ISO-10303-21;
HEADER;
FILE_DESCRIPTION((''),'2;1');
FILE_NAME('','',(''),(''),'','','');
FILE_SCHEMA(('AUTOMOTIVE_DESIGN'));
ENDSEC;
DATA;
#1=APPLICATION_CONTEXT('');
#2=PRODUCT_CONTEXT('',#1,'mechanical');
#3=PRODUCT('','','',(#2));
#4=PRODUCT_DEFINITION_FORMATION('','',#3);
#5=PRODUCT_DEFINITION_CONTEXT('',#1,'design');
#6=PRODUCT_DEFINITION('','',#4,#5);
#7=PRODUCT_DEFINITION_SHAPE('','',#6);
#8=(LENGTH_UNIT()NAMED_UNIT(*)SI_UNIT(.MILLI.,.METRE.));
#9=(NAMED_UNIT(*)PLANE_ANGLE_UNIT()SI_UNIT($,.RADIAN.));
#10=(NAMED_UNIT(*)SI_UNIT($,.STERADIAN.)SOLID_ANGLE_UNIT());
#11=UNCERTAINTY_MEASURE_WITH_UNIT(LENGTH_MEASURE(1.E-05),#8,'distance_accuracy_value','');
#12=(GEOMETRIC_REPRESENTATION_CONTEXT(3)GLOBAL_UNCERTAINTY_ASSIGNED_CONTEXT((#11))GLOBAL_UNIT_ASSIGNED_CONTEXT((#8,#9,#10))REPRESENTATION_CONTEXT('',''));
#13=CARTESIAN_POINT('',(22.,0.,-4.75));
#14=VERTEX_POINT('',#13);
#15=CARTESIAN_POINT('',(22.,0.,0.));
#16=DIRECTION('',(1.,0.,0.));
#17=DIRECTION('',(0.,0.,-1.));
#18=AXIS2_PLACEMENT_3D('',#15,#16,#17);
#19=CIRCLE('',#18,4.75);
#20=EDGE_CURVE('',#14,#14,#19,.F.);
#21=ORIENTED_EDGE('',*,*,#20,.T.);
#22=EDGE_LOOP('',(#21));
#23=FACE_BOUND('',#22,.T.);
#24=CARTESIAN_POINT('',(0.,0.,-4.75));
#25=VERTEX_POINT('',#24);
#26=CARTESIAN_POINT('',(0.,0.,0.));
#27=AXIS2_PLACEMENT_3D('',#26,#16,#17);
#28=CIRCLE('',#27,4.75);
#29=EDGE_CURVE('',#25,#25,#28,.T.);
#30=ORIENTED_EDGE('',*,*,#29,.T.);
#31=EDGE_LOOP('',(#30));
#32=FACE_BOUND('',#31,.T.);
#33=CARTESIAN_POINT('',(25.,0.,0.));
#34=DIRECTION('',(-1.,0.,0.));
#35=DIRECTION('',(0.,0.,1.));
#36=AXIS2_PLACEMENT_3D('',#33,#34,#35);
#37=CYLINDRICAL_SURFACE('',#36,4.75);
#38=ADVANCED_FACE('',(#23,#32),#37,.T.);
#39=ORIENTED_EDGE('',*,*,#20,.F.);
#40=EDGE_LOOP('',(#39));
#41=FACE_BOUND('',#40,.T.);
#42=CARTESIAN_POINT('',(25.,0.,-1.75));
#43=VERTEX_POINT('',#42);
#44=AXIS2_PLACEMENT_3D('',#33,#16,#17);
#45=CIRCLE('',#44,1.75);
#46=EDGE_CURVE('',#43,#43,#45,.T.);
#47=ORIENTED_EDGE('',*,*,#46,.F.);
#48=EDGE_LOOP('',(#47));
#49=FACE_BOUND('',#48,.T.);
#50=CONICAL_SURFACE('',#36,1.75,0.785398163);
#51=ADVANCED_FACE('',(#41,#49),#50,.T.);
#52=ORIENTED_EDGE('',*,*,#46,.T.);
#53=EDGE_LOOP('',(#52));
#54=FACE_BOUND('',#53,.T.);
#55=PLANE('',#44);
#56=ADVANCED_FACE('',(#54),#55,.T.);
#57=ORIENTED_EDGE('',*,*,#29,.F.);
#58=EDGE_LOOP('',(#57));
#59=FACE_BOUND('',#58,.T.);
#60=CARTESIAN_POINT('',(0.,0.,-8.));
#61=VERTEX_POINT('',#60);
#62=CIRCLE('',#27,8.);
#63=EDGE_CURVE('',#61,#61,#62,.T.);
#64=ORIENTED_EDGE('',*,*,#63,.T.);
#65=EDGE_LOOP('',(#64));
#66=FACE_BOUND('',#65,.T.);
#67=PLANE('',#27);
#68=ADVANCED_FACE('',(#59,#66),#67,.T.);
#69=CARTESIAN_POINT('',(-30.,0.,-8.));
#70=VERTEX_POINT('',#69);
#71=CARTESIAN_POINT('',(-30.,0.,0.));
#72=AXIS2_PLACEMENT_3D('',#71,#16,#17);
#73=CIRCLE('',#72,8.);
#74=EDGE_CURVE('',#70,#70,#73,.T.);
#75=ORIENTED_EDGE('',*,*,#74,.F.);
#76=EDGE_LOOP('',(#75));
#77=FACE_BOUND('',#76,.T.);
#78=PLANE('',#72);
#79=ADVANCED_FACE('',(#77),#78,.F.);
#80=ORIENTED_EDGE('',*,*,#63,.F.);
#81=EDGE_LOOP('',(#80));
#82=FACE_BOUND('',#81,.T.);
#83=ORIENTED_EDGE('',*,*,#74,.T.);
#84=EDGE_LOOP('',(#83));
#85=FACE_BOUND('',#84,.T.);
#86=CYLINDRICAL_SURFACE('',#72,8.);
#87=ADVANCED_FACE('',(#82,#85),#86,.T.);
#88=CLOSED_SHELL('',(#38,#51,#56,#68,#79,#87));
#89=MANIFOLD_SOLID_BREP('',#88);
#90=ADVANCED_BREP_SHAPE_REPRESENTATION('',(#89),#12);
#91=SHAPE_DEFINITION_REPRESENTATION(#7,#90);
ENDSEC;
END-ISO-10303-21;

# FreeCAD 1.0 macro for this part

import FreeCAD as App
import Part
import Sketcher

V = App.Vector


def edges_at(feature, points):
    """Names of the edges that pass closest to the given points."""
    edges = feature.Shape.Edges
    near = lambda p: min(range(len(edges)), key=lambda i: edges[i].distToShape(Part.Vertex(*p))[0])
    return sorted({f"Edge{near(p) + 1}" for p in points})

doc = App.newDocument("Part")
body = doc.addObject("PartDesign::Body", "Body")

sketch1 = body.newObject("Sketcher::SketchObject", "Sketch")
sketch1.AttachmentSupport = (doc.getObject("YZ_Plane"), [""])
sketch1.MapMode = "FlatFace"
sketch1.addGeometry(Part.Circle(V(0, 0, 0), V(0, 0, 1), 8), False)
sketch1.addConstraint([
    Sketcher.Constraint("Coincident", 0, 3, -1, 1),
    Sketcher.Constraint("Diameter", 0, 16.0),
])
pad1 = body.newObject("PartDesign::Pad", "Pad")
pad1.Profile = sketch1
pad1.Length = 30
pad1.Reversed = True

sketch2 = body.newObject("Sketcher::SketchObject", "Sketch001")
sketch2.AttachmentSupport = (doc.getObject("YZ_Plane"), [""])
sketch2.MapMode = "FlatFace"
sketch2.addGeometry(Part.Circle(V(0, 0, 0), V(0, 0, 1), 4.8), False)
sketch2.addConstraint([
    Sketcher.Constraint("Coincident", 0, 3, -1, 1),
    Sketcher.Constraint("Diameter", 0, 9.5),
])
pad2 = body.newObject("PartDesign::Pad", "Pad001")
pad2.Profile = sketch2
pad2.Length = 25
doc.recompute()

chamfer = body.newObject("PartDesign::Chamfer", "Chamfer")
chamfer.Base = (pad2, edges_at(pad2, [(25, 0, 4.75)]))
chamfer.Size = 3

doc.recompute()
